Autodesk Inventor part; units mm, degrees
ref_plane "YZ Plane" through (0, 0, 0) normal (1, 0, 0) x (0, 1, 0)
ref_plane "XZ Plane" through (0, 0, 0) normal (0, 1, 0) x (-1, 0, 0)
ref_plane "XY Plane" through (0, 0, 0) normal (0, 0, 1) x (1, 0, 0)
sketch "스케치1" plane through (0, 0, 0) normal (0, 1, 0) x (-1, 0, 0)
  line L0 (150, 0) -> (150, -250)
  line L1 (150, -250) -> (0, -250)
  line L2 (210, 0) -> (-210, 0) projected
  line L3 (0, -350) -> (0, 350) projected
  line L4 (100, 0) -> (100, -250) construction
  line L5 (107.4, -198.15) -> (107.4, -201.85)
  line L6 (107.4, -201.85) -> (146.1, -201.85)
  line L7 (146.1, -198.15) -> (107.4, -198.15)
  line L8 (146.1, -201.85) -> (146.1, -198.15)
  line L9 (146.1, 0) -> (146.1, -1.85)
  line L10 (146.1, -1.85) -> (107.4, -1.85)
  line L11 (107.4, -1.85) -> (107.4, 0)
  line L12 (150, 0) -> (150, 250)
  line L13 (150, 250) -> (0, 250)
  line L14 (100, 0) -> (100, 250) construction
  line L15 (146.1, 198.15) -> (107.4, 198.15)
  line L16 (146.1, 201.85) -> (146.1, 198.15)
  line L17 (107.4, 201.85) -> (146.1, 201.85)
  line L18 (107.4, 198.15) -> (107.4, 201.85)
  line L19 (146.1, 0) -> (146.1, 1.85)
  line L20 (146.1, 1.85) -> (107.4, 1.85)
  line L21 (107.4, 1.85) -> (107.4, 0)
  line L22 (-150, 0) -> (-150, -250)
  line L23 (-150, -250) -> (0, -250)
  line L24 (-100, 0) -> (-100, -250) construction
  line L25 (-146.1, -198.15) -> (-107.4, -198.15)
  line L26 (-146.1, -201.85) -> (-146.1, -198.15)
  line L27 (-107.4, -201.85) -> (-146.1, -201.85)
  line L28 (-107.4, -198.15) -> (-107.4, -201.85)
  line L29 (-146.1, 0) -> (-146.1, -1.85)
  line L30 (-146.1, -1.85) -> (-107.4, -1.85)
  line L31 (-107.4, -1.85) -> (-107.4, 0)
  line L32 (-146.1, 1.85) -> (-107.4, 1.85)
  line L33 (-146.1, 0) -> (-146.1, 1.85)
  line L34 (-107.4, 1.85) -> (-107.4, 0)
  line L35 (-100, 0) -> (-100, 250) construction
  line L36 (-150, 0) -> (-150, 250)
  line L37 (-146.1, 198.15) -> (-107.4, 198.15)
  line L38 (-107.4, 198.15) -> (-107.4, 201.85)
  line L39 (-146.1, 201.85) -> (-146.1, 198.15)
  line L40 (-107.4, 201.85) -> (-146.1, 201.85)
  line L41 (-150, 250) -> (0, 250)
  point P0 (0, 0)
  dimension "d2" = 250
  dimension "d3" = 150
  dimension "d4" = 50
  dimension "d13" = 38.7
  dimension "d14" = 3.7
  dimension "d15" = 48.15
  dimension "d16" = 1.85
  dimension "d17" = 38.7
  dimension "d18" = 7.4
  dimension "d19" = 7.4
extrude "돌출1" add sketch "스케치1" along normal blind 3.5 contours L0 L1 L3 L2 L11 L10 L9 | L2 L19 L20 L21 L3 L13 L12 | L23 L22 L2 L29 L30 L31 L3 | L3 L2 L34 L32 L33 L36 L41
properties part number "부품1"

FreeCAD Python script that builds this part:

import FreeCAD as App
import Part
import Sketcher

doc = App.newDocument("Part")
body = doc.addObject("PartDesign::Body", "Body")

sketch1 = body.newObject("Sketcher::SketchObject", "Sketch")
sketch1.AttachmentSupport = (doc.getObject("XZ_Plane"), [""])
sketch1.MapMode = "FlatFace"
sketch1.addGeometry(Part.LineSegment(App.Vector(-150, -250, 0), App.Vector(-150, 250, 0)), False)
sketch1.addGeometry(Part.LineSegment(App.Vector(-150, 250, 0), App.Vector(150, 250, 0)), False)
sketch1.addGeometry(Part.LineSegment(App.Vector(150, 250, 0), App.Vector(150, -250, 0)), False)
sketch1.addGeometry(Part.LineSegment(App.Vector(150, -250, 0), App.Vector(-150, -250, 0)), False)
sketch1.addGeometry(Part.LineSegment(App.Vector(-107.4, -1.9, 0), App.Vector(-107.4, 1.9, 0)), False)
sketch1.addGeometry(Part.LineSegment(App.Vector(-107.4, 1.9, 0), App.Vector(-146.1, 1.9, 0)), False)
sketch1.addGeometry(Part.LineSegment(App.Vector(-146.1, 1.9, 0), App.Vector(-146.1, -1.9, 0)), False)
sketch1.addGeometry(Part.LineSegment(App.Vector(-146.1, -1.9, 0), App.Vector(-107.4, -1.9, 0)), False)
sketch1.addGeometry(Part.LineSegment(App.Vector(-107.4, -201.8, 0), App.Vector(-107.4, -198.2, 0)), False)
sketch1.addGeometry(Part.LineSegment(App.Vector(-107.4, -198.2, 0), App.Vector(-146.1, -198.2, 0)), False)
sketch1.addGeometry(Part.LineSegment(App.Vector(-146.1, -198.2, 0), App.Vector(-146.1, -201.8, 0)), False)
sketch1.addGeometry(Part.LineSegment(App.Vector(-146.1, -201.8, 0), App.Vector(-107.4, -201.8, 0)), False)
sketch1.addGeometry(Part.LineSegment(App.Vector(146.1, -1.9, 0), App.Vector(146.1, 1.9, 0)), False)
sketch1.addGeometry(Part.LineSegment(App.Vector(146.1, 1.9, 0), App.Vector(107.4, 1.9, 0)), False)
sketch1.addGeometry(Part.LineSegment(App.Vector(107.4, 1.9, 0), App.Vector(107.4, -1.9, 0)), False)
sketch1.addGeometry(Part.LineSegment(App.Vector(107.4, -1.9, 0), App.Vector(146.1, -1.9, 0)), False)
sketch1.addGeometry(Part.LineSegment(App.Vector(146.1, -198.2, 0), App.Vector(107.4, -198.2, 0)), False)
sketch1.addGeometry(Part.LineSegment(App.Vector(107.4, -198.2, 0), App.Vector(107.4, -201.8, 0)), False)
sketch1.addGeometry(Part.LineSegment(App.Vector(107.4, -201.8, 0), App.Vector(146.1, -201.8, 0)), False)
sketch1.addGeometry(Part.LineSegment(App.Vector(146.1, -201.8, 0), App.Vector(146.1, -198.2, 0)), False)
sketch1.addGeometry(Part.LineSegment(App.Vector(-107.4, 198.2, 0), App.Vector(-107.4, 201.8, 0)), False)
sketch1.addGeometry(Part.LineSegment(App.Vector(-107.4, 201.8, 0), App.Vector(-146.1, 201.8, 0)), False)
sketch1.addGeometry(Part.LineSegment(App.Vector(-146.1, 201.8, 0), App.Vector(-146.1, 198.2, 0)), False)
sketch1.addGeometry(Part.LineSegment(App.Vector(-146.1, 198.2, 0), App.Vector(-107.4, 198.2, 0)), False)
sketch1.addGeometry(Part.LineSegment(App.Vector(107.4, 201.8, 0), App.Vector(107.4, 198.2, 0)), False)
sketch1.addGeometry(Part.LineSegment(App.Vector(107.4, 198.2, 0), App.Vector(146.1, 198.2, 0)), False)
sketch1.addGeometry(Part.LineSegment(App.Vector(146.1, 198.2, 0), App.Vector(146.1, 201.8, 0)), False)
sketch1.addGeometry(Part.LineSegment(App.Vector(146.1, 201.8, 0), App.Vector(107.4, 201.8, 0)), False)
sketch1.addConstraint(Sketcher.Constraint("Coincident", 0, 2, 1, 1))
sketch1.addConstraint(Sketcher.Constraint("Coincident", 1, 2, 2, 1))
sketch1.addConstraint(Sketcher.Constraint("Coincident", 2, 2, 3, 1))
sketch1.addConstraint(Sketcher.Constraint("Coincident", 3, 2, 0, 1))
sketch1.addConstraint(Sketcher.Constraint("Coincident", 4, 2, 5, 1))
sketch1.addConstraint(Sketcher.Constraint("Coincident", 5, 2, 6, 1))
sketch1.addConstraint(Sketcher.Constraint("Coincident", 6, 2, 7, 1))
sketch1.addConstraint(Sketcher.Constraint("Coincident", 7, 2, 4, 1))
sketch1.addConstraint(Sketcher.Constraint("Coincident", 8, 2, 9, 1))
sketch1.addConstraint(Sketcher.Constraint("Coincident", 9, 2, 10, 1))
sketch1.addConstraint(Sketcher.Constraint("Coincident", 10, 2, 11, 1))
sketch1.addConstraint(Sketcher.Constraint("Coincident", 11, 2, 8, 1))
sketch1.addConstraint(Sketcher.Constraint("Coincident", 12, 2, 13, 1))
sketch1.addConstraint(Sketcher.Constraint("Coincident", 13, 2, 14, 1))
sketch1.addConstraint(Sketcher.Constraint("Coincident", 14, 2, 15, 1))
sketch1.addConstraint(Sketcher.Constraint("Coincident", 15, 2, 12, 1))
sketch1.addConstraint(Sketcher.Constraint("Coincident", 16, 2, 17, 1))
sketch1.addConstraint(Sketcher.Constraint("Coincident", 17, 2, 18, 1))
sketch1.addConstraint(Sketcher.Constraint("Coincident", 18, 2, 19, 1))
sketch1.addConstraint(Sketcher.Constraint("Coincident", 19, 2, 16, 1))
sketch1.addConstraint(Sketcher.Constraint("Coincident", 20, 2, 21, 1))
sketch1.addConstraint(Sketcher.Constraint("Coincident", 21, 2, 22, 1))
sketch1.addConstraint(Sketcher.Constraint("Coincident", 22, 2, 23, 1))
sketch1.addConstraint(Sketcher.Constraint("Coincident", 23, 2, 20, 1))
sketch1.addConstraint(Sketcher.Constraint("Coincident", 24, 2, 25, 1))
sketch1.addConstraint(Sketcher.Constraint("Coincident", 25, 2, 26, 1))
sketch1.addConstraint(Sketcher.Constraint("Coincident", 26, 2, 27, 1))
sketch1.addConstraint(Sketcher.Constraint("Coincident", 27, 2, 24, 1))
sketch1.addConstraint(Sketcher.Constraint("Vertical", 0))
sketch1.addConstraint(Sketcher.Constraint("Horizontal", 1))
sketch1.addConstraint(Sketcher.Constraint("Vertical", 2))
sketch1.addConstraint(Sketcher.Constraint("Horizontal", 3))
sketch1.addConstraint(Sketcher.Constraint("Vertical", 4))
sketch1.addConstraint(Sketcher.Constraint("Horizontal", 5))
sketch1.addConstraint(Sketcher.Constraint("Vertical", 6))
sketch1.addConstraint(Sketcher.Constraint("Horizontal", 7))
sketch1.addConstraint(Sketcher.Constraint("Vertical", 8))
sketch1.addConstraint(Sketcher.Constraint("Horizontal", 9))
sketch1.addConstraint(Sketcher.Constraint("Vertical", 10))
sketch1.addConstraint(Sketcher.Constraint("Horizontal", 11))
sketch1.addConstraint(Sketcher.Constraint("Vertical", 12))
sketch1.addConstraint(Sketcher.Constraint("Horizontal", 13))
sketch1.addConstraint(Sketcher.Constraint("Vertical", 14))
sketch1.addConstraint(Sketcher.Constraint("Horizontal", 15))
sketch1.addConstraint(Sketcher.Constraint("Horizontal", 16))
sketch1.addConstraint(Sketcher.Constraint("Vertical", 17))
sketch1.addConstraint(Sketcher.Constraint("Horizontal", 18))
sketch1.addConstraint(Sketcher.Constraint("Vertical", 19))
sketch1.addConstraint(Sketcher.Constraint("Vertical", 20))
sketch1.addConstraint(Sketcher.Constraint("Horizontal", 21))
sketch1.addConstraint(Sketcher.Constraint("Vertical", 22))
sketch1.addConstraint(Sketcher.Constraint("Horizontal", 23))
sketch1.addConstraint(Sketcher.Constraint("Vertical", 24))
sketch1.addConstraint(Sketcher.Constraint("Horizontal", 25))
sketch1.addConstraint(Sketcher.Constraint("Vertical", 26))
sketch1.addConstraint(Sketcher.Constraint("Horizontal", 27))
sketch1.addConstraint(Sketcher.Constraint("Symmetric", 0, 2, 2, 2, -1, 1))
sketch1.addConstraint(Sketcher.Constraint("Symmetric", 6, 2, 12, 2, -1, 1))
sketch1.addConstraint(Sketcher.Constraint("Symmetric", 4, 2, 14, 2, -1, 1))
sketch1.addConstraint(Sketcher.Constraint("Symmetric", 17, 2, 20, 2, -1, 1))
sketch1.addConstraint(Sketcher.Constraint("Symmetric", 19, 2, 22, 2, -1, 1))
sketch1.addConstraint(Sketcher.Constraint("Symmetric", 8, 2, 24, 2, -1, 1))
sketch1.addConstraint(Sketcher.Constraint("Symmetric", 10, 2, 26, 2, -1, 1))
sketch1.addConstraint(Sketcher.Constraint("Symmetric", 8, 2, 16, 2, -2))
sketch1.addConstraint(Sketcher.Constraint("Symmetric", 10, 2, 18, 2, -2))
sketch1.addConstraint(Sketcher.Constraint("Horizontal", 5, 2, 12, 2))
sketch1.addConstraint(Sketcher.Constraint("Vertical", 7, 2, 8, 2))
sketch1.addConstraint(Sketcher.Constraint("Vertical", 6, 2, 9, 2))
sketch1.addConstraint(Sketcher.Constraint("Equal", 6, 8))
sketch1.addConstraint(Sketcher.Constraint("DistanceX", 5, 2, 5, 1, 38.7))
sketch1.addConstraint(Sketcher.Constraint("DistanceY", 4, 1, 4, 2, 3.7))
sketch1.addConstraint(Sketcher.Constraint("DistanceX", 0, 2, -1, 1, 150.0))
sketch1.addConstraint(Sketcher.Constraint("DistanceY", -1, 1, 0, 2, 250.0))
sketch1.addConstraint(Sketcher.Constraint("DistanceY", 3, 2, 10, 2, 48.15))
sketch1.addConstraint(Sketcher.Constraint("DistanceX", 4, 2, -1, 1, 107.4))
pad1 = body.newObject("PartDesign::Pad", "Pad")
pad1.Profile = sketch1
pad1.Length = 3.5
pad1.Reversed = True

doc.recompute()
